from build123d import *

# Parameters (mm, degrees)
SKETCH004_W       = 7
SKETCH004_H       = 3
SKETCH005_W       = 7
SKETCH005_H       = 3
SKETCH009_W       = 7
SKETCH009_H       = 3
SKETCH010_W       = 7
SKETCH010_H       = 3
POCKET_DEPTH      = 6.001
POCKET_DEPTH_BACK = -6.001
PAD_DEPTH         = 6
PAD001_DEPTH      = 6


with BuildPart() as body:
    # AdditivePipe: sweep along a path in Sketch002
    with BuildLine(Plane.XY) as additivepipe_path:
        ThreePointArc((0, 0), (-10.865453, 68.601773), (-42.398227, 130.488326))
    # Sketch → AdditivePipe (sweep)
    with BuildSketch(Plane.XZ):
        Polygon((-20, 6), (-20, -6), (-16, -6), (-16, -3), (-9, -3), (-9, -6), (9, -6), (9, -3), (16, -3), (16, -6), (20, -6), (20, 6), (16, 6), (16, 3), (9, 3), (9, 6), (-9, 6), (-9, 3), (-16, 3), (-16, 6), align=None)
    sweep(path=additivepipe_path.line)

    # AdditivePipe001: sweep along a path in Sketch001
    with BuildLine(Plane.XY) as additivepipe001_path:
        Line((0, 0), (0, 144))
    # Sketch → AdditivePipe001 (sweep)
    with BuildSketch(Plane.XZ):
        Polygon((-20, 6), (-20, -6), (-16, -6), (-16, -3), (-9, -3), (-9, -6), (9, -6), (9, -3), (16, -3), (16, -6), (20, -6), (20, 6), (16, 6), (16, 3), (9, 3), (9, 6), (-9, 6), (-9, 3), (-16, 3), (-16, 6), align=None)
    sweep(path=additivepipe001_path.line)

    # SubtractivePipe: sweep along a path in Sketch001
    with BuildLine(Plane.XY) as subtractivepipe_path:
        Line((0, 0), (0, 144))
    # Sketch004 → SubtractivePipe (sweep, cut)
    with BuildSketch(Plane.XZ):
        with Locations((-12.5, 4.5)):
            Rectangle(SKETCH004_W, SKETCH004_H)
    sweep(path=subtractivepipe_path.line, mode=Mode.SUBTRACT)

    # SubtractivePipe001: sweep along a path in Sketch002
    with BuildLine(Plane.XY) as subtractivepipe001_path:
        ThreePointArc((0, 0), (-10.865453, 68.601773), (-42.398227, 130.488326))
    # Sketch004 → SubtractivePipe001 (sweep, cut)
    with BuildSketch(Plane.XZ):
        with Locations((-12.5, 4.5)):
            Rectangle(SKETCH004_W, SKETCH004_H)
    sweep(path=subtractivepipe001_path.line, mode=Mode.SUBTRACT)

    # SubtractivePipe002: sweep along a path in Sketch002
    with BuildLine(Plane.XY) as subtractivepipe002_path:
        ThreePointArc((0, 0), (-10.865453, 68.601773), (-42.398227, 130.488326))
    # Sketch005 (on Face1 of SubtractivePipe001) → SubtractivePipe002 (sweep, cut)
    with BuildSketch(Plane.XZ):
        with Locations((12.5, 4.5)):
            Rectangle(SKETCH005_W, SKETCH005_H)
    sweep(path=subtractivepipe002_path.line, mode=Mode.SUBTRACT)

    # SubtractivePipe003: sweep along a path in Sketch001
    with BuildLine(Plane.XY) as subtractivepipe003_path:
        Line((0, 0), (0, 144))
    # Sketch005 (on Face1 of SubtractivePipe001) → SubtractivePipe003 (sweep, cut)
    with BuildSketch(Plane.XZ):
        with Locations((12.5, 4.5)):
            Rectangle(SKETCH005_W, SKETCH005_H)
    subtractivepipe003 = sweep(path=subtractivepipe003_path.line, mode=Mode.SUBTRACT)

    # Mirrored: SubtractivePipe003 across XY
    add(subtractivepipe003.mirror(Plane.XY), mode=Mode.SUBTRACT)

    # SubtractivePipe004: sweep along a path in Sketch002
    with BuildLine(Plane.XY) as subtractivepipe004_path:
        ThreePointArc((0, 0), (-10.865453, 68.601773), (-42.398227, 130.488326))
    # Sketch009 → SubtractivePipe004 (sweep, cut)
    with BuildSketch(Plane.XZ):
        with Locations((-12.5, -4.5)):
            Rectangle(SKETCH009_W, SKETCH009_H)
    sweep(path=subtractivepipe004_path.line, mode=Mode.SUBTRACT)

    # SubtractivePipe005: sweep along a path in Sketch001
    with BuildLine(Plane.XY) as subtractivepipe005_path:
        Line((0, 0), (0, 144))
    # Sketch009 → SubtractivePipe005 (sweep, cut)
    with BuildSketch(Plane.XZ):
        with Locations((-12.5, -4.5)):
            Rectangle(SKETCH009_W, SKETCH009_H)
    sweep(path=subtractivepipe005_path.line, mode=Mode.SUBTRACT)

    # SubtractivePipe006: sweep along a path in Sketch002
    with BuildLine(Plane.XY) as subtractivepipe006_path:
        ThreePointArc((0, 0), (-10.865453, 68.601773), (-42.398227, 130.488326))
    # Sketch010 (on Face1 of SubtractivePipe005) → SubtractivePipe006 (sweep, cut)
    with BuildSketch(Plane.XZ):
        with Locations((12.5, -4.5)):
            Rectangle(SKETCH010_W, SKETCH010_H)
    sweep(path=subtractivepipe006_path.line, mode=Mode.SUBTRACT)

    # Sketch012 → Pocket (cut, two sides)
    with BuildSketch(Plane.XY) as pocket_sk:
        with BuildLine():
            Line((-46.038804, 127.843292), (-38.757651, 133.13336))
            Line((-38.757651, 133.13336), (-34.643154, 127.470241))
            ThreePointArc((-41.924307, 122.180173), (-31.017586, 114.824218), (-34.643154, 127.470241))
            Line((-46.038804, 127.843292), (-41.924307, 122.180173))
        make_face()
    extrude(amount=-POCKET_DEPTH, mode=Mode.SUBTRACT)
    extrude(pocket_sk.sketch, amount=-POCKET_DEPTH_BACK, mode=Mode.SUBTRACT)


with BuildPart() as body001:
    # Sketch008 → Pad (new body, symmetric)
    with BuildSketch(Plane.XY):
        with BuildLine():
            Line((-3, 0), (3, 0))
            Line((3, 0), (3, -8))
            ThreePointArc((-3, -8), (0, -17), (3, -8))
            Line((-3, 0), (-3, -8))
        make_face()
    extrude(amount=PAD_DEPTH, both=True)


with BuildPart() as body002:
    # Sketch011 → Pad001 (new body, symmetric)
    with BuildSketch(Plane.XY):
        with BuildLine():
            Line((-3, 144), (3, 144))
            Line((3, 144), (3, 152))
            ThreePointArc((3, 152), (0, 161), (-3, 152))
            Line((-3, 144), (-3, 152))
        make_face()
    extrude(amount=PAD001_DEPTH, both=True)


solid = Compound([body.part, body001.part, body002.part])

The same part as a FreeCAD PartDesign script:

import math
import FreeCAD as App
import Part
import Sketcher

V = App.Vector
Q = App.Units.Quantity

doc = App.newDocument("Part")
body = doc.addObject("PartDesign::Body", "Body")

sketch1 = body.newObject("Sketcher::SketchObject", "Sketch")
sketch1.AttachmentSupport = (doc.getObject("XZ_Plane"), [""])
sketch1.MapMode = "FlatFace"
sketch1.addGeometry(Part.LineSegment(V(-20, 6, 0), V(-20, -6, 0)), False)
sketch1.addGeometry(Part.LineSegment(V(-20, -6, 0), V(-16, -6, 0)), False)
sketch1.addGeometry(Part.LineSegment(V(-16, -6, 0), V(-16, -3, 0)), False)
sketch1.addGeometry(Part.LineSegment(V(-16, -3, 0), V(-9, -3, 0)), False)
sketch1.addGeometry(Part.LineSegment(V(-9, -3, 0), V(-9, -6, 0)), False)
sketch1.addGeometry(Part.LineSegment(V(-9, -6, 0), V(9, -6, 0)), False)
sketch1.addGeometry(Part.LineSegment(V(9, -6, 0), V(9, -3, 0)), False)
sketch1.addGeometry(Part.LineSegment(V(9, -3, 0), V(16, -3, 0)), False)
sketch1.addGeometry(Part.LineSegment(V(16, -3, 0), V(16, -6, 0)), False)
sketch1.addGeometry(Part.LineSegment(V(16, -6, 0), V(20, -6, 0)), False)
sketch1.addGeometry(Part.LineSegment(V(20, -6, 0), V(20, 6, 0)), False)
sketch1.addGeometry(Part.LineSegment(V(20, 6, 0), V(16, 6, 0)), False)
sketch1.addGeometry(Part.LineSegment(V(16, 6, 0), V(16, 3, 0)), False)
sketch1.addGeometry(Part.LineSegment(V(16, 3, 0), V(9, 3, 0)), False)
sketch1.addGeometry(Part.LineSegment(V(9, 3, 0), V(9, 6, 0)), False)
sketch1.addGeometry(Part.LineSegment(V(9, 6, 0), V(-9, 6, 0)), False)
sketch1.addGeometry(Part.LineSegment(V(-9, 6, 0), V(-9, 3, 0)), False)
sketch1.addGeometry(Part.LineSegment(V(-9, 3, 0), V(-16, 3, 0)), False)
sketch1.addGeometry(Part.LineSegment(V(-16, 3, 0), V(-16, 6, 0)), False)
sketch1.addGeometry(Part.LineSegment(V(-16, 6, 0), V(-20, 6, 0)), False)
sketch1.addConstraint(Sketcher.Constraint("Coincident", 0, 2, 1, 1))
sketch1.addConstraint(Sketcher.Constraint("Coincident", 1, 2, 2, 1))
sketch1.addConstraint(Sketcher.Constraint("Coincident", 2, 2, 3, 1))
sketch1.addConstraint(Sketcher.Constraint("Coincident", 3, 2, 4, 1))
sketch1.addConstraint(Sketcher.Constraint("Coincident", 4, 2, 5, 1))
sketch1.addConstraint(Sketcher.Constraint("Coincident", 5, 2, 6, 1))
sketch1.addConstraint(Sketcher.Constraint("Coincident", 6, 2, 7, 1))
sketch1.addConstraint(Sketcher.Constraint("Coincident", 7, 2, 8, 1))
sketch1.addConstraint(Sketcher.Constraint("Coincident", 8, 2, 9, 1))
sketch1.addConstraint(Sketcher.Constraint("Coincident", 9, 2, 10, 1))
sketch1.addConstraint(Sketcher.Constraint("Coincident", 10, 2, 11, 1))
sketch1.addConstraint(Sketcher.Constraint("Coincident", 11, 2, 12, 1))
sketch1.addConstraint(Sketcher.Constraint("Coincident", 12, 2, 13, 1))
sketch1.addConstraint(Sketcher.Constraint("Coincident", 13, 2, 14, 1))
sketch1.addConstraint(Sketcher.Constraint("Coincident", 14, 2, 15, 1))
sketch1.addConstraint(Sketcher.Constraint("Coincident", 15, 2, 16, 1))
sketch1.addConstraint(Sketcher.Constraint("Coincident", 16, 2, 17, 1))
sketch1.addConstraint(Sketcher.Constraint("Coincident", 17, 2, 18, 1))
sketch1.addConstraint(Sketcher.Constraint("Coincident", 18, 2, 19, 1))
sketch1.addConstraint(Sketcher.Constraint("Coincident", 19, 2, 0, 1))
sketch1.addConstraint(Sketcher.Constraint("Vertical", 0))
sketch1.addConstraint(Sketcher.Constraint("Horizontal", 1))
sketch1.addConstraint(Sketcher.Constraint("Vertical", 2))
sketch1.addConstraint(Sketcher.Constraint("Horizontal", 3))
sketch1.addConstraint(Sketcher.Constraint("Vertical", 4))
sketch1.addConstraint(Sketcher.Constraint("Horizontal", 5))
sketch1.addConstraint(Sketcher.Constraint("Vertical", 6))
sketch1.addConstraint(Sketcher.Constraint("Horizontal", 7))
sketch1.addConstraint(Sketcher.Constraint("Vertical", 8))
sketch1.addConstraint(Sketcher.Constraint("Horizontal", 9))
sketch1.addConstraint(Sketcher.Constraint("Vertical", 10))
sketch1.addConstraint(Sketcher.Constraint("Horizontal", 11))
sketch1.addConstraint(Sketcher.Constraint("Vertical", 12))
sketch1.addConstraint(Sketcher.Constraint("Horizontal", 13))
sketch1.addConstraint(Sketcher.Constraint("Vertical", 14))
sketch1.addConstraint(Sketcher.Constraint("Horizontal", 15))
sketch1.addConstraint(Sketcher.Constraint("Vertical", 16))
sketch1.addConstraint(Sketcher.Constraint("Horizontal", 17))
sketch1.addConstraint(Sketcher.Constraint("Vertical", 18))
sketch1.addConstraint(Sketcher.Constraint("Horizontal", 19))
sketch1.addConstraint(Sketcher.Constraint("Symmetric", 0, 2, 10, 2, -1, 1))
sketch1.addConstraint(Sketcher.Constraint("Symmetric", 2, 2, 12, 2, -1, 1))
sketch1.addConstraint(Sketcher.Constraint("Symmetric", 4, 2, 14, 2, -1, 1))
sketch1.addConstraint(Sketcher.Constraint("Symmetric", 6, 2, 16, 2, -1, 1))
sketch1.addConstraint(Sketcher.Constraint("Symmetric", 8, 2, 18, 2, -1, 1))
sketch1.addConstraint(Sketcher.Constraint("Symmetric", 3, 2, 6, 2, -2))
sketch1.addConstraint(Sketcher.Constraint("Symmetric", 1, 2, 8, 2, -2))
sketch1.addConstraint(Sketcher.Constraint("Horizontal", 1, 2, 4, 2))
sketch1.addConstraint(Sketcher.Constraint("DistanceX", 1, 1, 1, 2, 4.0))
sketch1.addConstraint(Sketcher.Constraint("DistanceX", 3, 1, 3, 2, 7.0))
sketch1.addConstraint(Sketcher.Constraint("DistanceX", 5, 1, 5, 2, 18.0))
sketch1.addConstraint(Sketcher.Constraint("DistanceY", 0, 2, 0, 1, 12.0))
sketch1.addConstraint(Sketcher.Constraint("DistanceY", 2, 1, 2, 2, 3.0))

sketch2 = body.newObject("Sketcher::SketchObject", "Sketch001")
sketch2.AttachmentSupport = (doc.getObject("XY_Plane"), [""])
sketch2.MapMode = "FlatFace"
sketch2.addGeometry(Part.ArcOfCircle(Part.Circle(V(-221.999993, 0.000002, 0), V(0, 0, 1), 221.999993), math.radians(-0.000001), math.radians(36)), False)
sketch2.addConstraint(Sketcher.Constraint("Coincident", 0, 1, -1, 1))
sketch2.addConstraint(Sketcher.Constraint("Radius", 0, 221.999993))
sketch2.addConstraint(Sketcher.Constraint("DistanceX", 0, 2, -1, 1, 42.398227))
sketch2.addConstraint(Sketcher.Constraint("DistanceY", -1, 1, 0, 2, 130.488326))
doc.recompute()

additivepipe = body.newObject("PartDesign::AdditivePipe", "AdditivePipe")
additivepipe.Profile = sketch1
additivepipe.Spine = (sketch2, ["Edge1"])

sketch3 = body.newObject("Sketcher::SketchObject", "Sketch002")
sketch3.AttachmentSupport = (doc.getObject("XZ_Plane"), [""])
sketch3.MapMode = "FlatFace"
sketch3.addGeometry(Part.LineSegment(V(-20, 6, 0), V(-20, -6, 0)), False)
sketch3.addGeometry(Part.LineSegment(V(-20, -6, 0), V(-16, -6, 0)), False)
sketch3.addGeometry(Part.LineSegment(V(-16, -6, 0), V(-16, -3, 0)), False)
sketch3.addGeometry(Part.LineSegment(V(-16, -3, 0), V(-9, -3, 0)), False)
sketch3.addGeometry(Part.LineSegment(V(-9, -3, 0), V(-9, -6, 0)), False)
sketch3.addGeometry(Part.LineSegment(V(-9, -6, 0), V(9, -6, 0)), False)
sketch3.addGeometry(Part.LineSegment(V(9, -6, 0), V(9, -3, 0)), False)
sketch3.addGeometry(Part.LineSegment(V(9, -3, 0), V(16, -3, 0)), False)
sketch3.addGeometry(Part.LineSegment(V(16, -3, 0), V(16, -6, 0)), False)
sketch3.addGeometry(Part.LineSegment(V(16, -6, 0), V(20, -6, 0)), False)
sketch3.addGeometry(Part.LineSegment(V(20, -6, 0), V(20, 6, 0)), False)
sketch3.addGeometry(Part.LineSegment(V(20, 6, 0), V(16, 6, 0)), False)
sketch3.addGeometry(Part.LineSegment(V(16, 6, 0), V(16, 3, 0)), False)
sketch3.addGeometry(Part.LineSegment(V(16, 3, 0), V(9, 3, 0)), False)
sketch3.addGeometry(Part.LineSegment(V(9, 3, 0), V(9, 6, 0)), False)
sketch3.addGeometry(Part.LineSegment(V(9, 6, 0), V(-9, 6, 0)), False)
sketch3.addGeometry(Part.LineSegment(V(-9, 6, 0), V(-9, 3, 0)), False)
sketch3.addGeometry(Part.LineSegment(V(-9, 3, 0), V(-16, 3, 0)), False)
sketch3.addGeometry(Part.LineSegment(V(-16, 3, 0), V(-16, 6, 0)), False)
sketch3.addGeometry(Part.LineSegment(V(-16, 6, 0), V(-20, 6, 0)), False)
sketch3.addConstraint(Sketcher.Constraint("Coincident", 0, 2, 1, 1))
sketch3.addConstraint(Sketcher.Constraint("Coincident", 1, 2, 2, 1))
sketch3.addConstraint(Sketcher.Constraint("Coincident", 2, 2, 3, 1))
sketch3.addConstraint(Sketcher.Constraint("Coincident", 3, 2, 4, 1))
sketch3.addConstraint(Sketcher.Constraint("Coincident", 4, 2, 5, 1))
sketch3.addConstraint(Sketcher.Constraint("Coincident", 5, 2, 6, 1))
sketch3.addConstraint(Sketcher.Constraint("Coincident", 6, 2, 7, 1))
sketch3.addConstraint(Sketcher.Constraint("Coincident", 7, 2, 8, 1))
sketch3.addConstraint(Sketcher.Constraint("Coincident", 8, 2, 9, 1))
sketch3.addConstraint(Sketcher.Constraint("Coincident", 9, 2, 10, 1))
sketch3.addConstraint(Sketcher.Constraint("Coincident", 10, 2, 11, 1))
sketch3.addConstraint(Sketcher.Constraint("Coincident", 11, 2, 12, 1))
sketch3.addConstraint(Sketcher.Constraint("Coincident", 12, 2, 13, 1))
sketch3.addConstraint(Sketcher.Constraint("Coincident", 13, 2, 14, 1))
sketch3.addConstraint(Sketcher.Constraint("Coincident", 14, 2, 15, 1))
sketch3.addConstraint(Sketcher.Constraint("Coincident", 15, 2, 16, 1))
sketch3.addConstraint(Sketcher.Constraint("Coincident", 16, 2, 17, 1))
sketch3.addConstraint(Sketcher.Constraint("Coincident", 17, 2, 18, 1))
sketch3.addConstraint(Sketcher.Constraint("Coincident", 18, 2, 19, 1))
sketch3.addConstraint(Sketcher.Constraint("Coincident", 19, 2, 0, 1))
sketch3.addConstraint(Sketcher.Constraint("Vertical", 0))
sketch3.addConstraint(Sketcher.Constraint("Horizontal", 1))
sketch3.addConstraint(Sketcher.Constraint("Vertical", 2))
sketch3.addConstraint(Sketcher.Constraint("Horizontal", 3))
sketch3.addConstraint(Sketcher.Constraint("Vertical", 4))
sketch3.addConstraint(Sketcher.Constraint("Horizontal", 5))
sketch3.addConstraint(Sketcher.Constraint("Vertical", 6))
sketch3.addConstraint(Sketcher.Constraint("Horizontal", 7))
sketch3.addConstraint(Sketcher.Constraint("Vertical", 8))
sketch3.addConstraint(Sketcher.Constraint("Horizontal", 9))
sketch3.addConstraint(Sketcher.Constraint("Vertical", 10))
sketch3.addConstraint(Sketcher.Constraint("Horizontal", 11))
sketch3.addConstraint(Sketcher.Constraint("Vertical", 12))
sketch3.addConstraint(Sketcher.Constraint("Horizontal", 13))
sketch3.addConstraint(Sketcher.Constraint("Vertical", 14))
sketch3.addConstraint(Sketcher.Constraint("Horizontal", 15))
sketch3.addConstraint(Sketcher.Constraint("Vertical", 16))
sketch3.addConstraint(Sketcher.Constraint("Horizontal", 17))
sketch3.addConstraint(Sketcher.Constraint("Vertical", 18))
sketch3.addConstraint(Sketcher.Constraint("Horizontal", 19))
sketch3.addConstraint(Sketcher.Constraint("Symmetric", 0, 2, 10, 2, -1, 1))
sketch3.addConstraint(Sketcher.Constraint("Symmetric", 2, 2, 12, 2, -1, 1))
sketch3.addConstraint(Sketcher.Constraint("Symmetric", 4, 2, 14, 2, -1, 1))
sketch3.addConstraint(Sketcher.Constraint("Symmetric", 6, 2, 16, 2, -1, 1))
sketch3.addConstraint(Sketcher.Constraint("Symmetric", 8, 2, 18, 2, -1, 1))
sketch3.addConstraint(Sketcher.Constraint("Symmetric", 3, 2, 6, 2, -2))
sketch3.addConstraint(Sketcher.Constraint("Symmetric", 1, 2, 8, 2, -2))
sketch3.addConstraint(Sketcher.Constraint("Horizontal", 1, 2, 4, 2))
sketch3.addConstraint(Sketcher.Constraint("DistanceX", 1, 1, 1, 2, 4.0))
sketch3.addConstraint(Sketcher.Constraint("DistanceX", 3, 1, 3, 2, 7.0))
sketch3.addConstraint(Sketcher.Constraint("DistanceX", 5, 1, 5, 2, 18.0))
sketch3.addConstraint(Sketcher.Constraint("DistanceY", 0, 2, 0, 1, 12.0))
sketch3.addConstraint(Sketcher.Constraint("DistanceY", 2, 1, 2, 2, 3.0))

sketch4 = body.newObject("Sketcher::SketchObject", "Sketch003")
sketch4.AttachmentSupport = (doc.getObject("XY_Plane"), [""])
sketch4.MapMode = "FlatFace"
sketch4.addGeometry(Part.LineSegment(V(0, 0, 0), V(0, 144, 0)), False)
sketch4.addConstraint(Sketcher.Constraint("Vertical", 0))
sketch4.addConstraint(Sketcher.Constraint("Coincident", 0, 1, -1, 1))
sketch4.addConstraint(Sketcher.Constraint("DistanceY", 0, 1, 0, 2, 144.0))
doc.recompute()

additivepipe2 = body.newObject("PartDesign::AdditivePipe", "AdditivePipe001")
additivepipe2.Profile = sketch3
additivepipe2.Spine = (sketch4, ["Edge1"])

sketch5 = body.newObject("Sketcher::SketchObject", "Sketch004")
sketch5.AttachmentSupport = (doc.getObject("XZ_Plane"), [""])
sketch5.MapMode = "FlatFace"
sketch5.addGeometry(Part.LineSegment(V(-16, 6, 0), V(-16, 3, 0)), False)
sketch5.addGeometry(Part.LineSegment(V(-16, 3, 0), V(-9, 3, 0)), False)
sketch5.addGeometry(Part.LineSegment(V(-9, 3, 0), V(-9, 6, 0)), False)
sketch5.addGeometry(Part.LineSegment(V(-9, 6, 0), V(-16, 6, 0)), False)
sketch5.addConstraint(Sketcher.Constraint("Coincident", 0, 2, 1, 1))
sketch5.addConstraint(Sketcher.Constraint("Coincident", 1, 2, 2, 1))
sketch5.addConstraint(Sketcher.Constraint("Coincident", 2, 2, 3, 1))
sketch5.addConstraint(Sketcher.Constraint("Coincident", 3, 2, 0, 1))
sketch5.addConstraint(Sketcher.Constraint("Vertical", 0))
sketch5.addConstraint(Sketcher.Constraint("Horizontal", 1))
sketch5.addConstraint(Sketcher.Constraint("Vertical", 2))
sketch5.addConstraint(Sketcher.Constraint("Horizontal", 3))
sketch5.addConstraint(Sketcher.Constraint("DistanceX", 1, 1, 1, 2, 7.0))
sketch5.addConstraint(Sketcher.Constraint("DistanceY", 0, 2, 0, 1, 3.0))
sketch5.addConstraint(Sketcher.Constraint("DistanceX", 0, 2, -1, 1, 16.0))
sketch5.addConstraint(Sketcher.Constraint("DistanceY", -1, 1, 0, 2, 3.0))

sketch6 = body.newObject("Sketcher::SketchObject", "Sketch005")
sketch6.AttachmentSupport = (doc.getObject("XY_Plane"), [""])
sketch6.MapMode = "FlatFace"
sketch6.addGeometry(Part.LineSegment(V(0, 0, 0), V(0, 144, 0)), False)
sketch6.addConstraint(Sketcher.Constraint("Vertical", 0))
sketch6.addConstraint(Sketcher.Constraint("Coincident", 0, 1, -1, 1))
sketch6.addConstraint(Sketcher.Constraint("DistanceY", 0, 1, 0, 2, 144.0))
doc.recompute()

subtractivepipe = body.newObject("PartDesign::SubtractivePipe", "SubtractivePipe")
subtractivepipe.Profile = sketch5
subtractivepipe.Spine = (sketch6, ["Edge1"])

sketch7 = body.newObject("Sketcher::SketchObject", "Sketch006")
sketch7.AttachmentSupport = (doc.getObject("XZ_Plane"), [""])
sketch7.MapMode = "FlatFace"
sketch7.addGeometry(Part.LineSegment(V(-16, 6, 0), V(-16, 3, 0)), False)
sketch7.addGeometry(Part.LineSegment(V(-16, 3, 0), V(-9, 3, 0)), False)
sketch7.addGeometry(Part.LineSegment(V(-9, 3, 0), V(-9, 6, 0)), False)
sketch7.addGeometry(Part.LineSegment(V(-9, 6, 0), V(-16, 6, 0)), False)
sketch7.addConstraint(Sketcher.Constraint("Coincident", 0, 2, 1, 1))
sketch7.addConstraint(Sketcher.Constraint("Coincident", 1, 2, 2, 1))
sketch7.addConstraint(Sketcher.Constraint("Coincident", 2, 2, 3, 1))
sketch7.addConstraint(Sketcher.Constraint("Coincident", 3, 2, 0, 1))
sketch7.addConstraint(Sketcher.Constraint("Vertical", 0))
sketch7.addConstraint(Sketcher.Constraint("Horizontal", 1))
sketch7.addConstraint(Sketcher.Constraint("Vertical", 2))
sketch7.addConstraint(Sketcher.Constraint("Horizontal", 3))
sketch7.addConstraint(Sketcher.Constraint("DistanceX", 1, 1, 1, 2, 7.0))
sketch7.addConstraint(Sketcher.Constraint("DistanceY", 0, 2, 0, 1, 3.0))
sketch7.addConstraint(Sketcher.Constraint("DistanceX", 0, 2, -1, 1, 16.0))
sketch7.addConstraint(Sketcher.Constraint("DistanceY", -1, 1, 0, 2, 3.0))

sketch8 = body.newObject("Sketcher::SketchObject", "Sketch007")
sketch8.AttachmentSupport = (doc.getObject("XY_Plane"), [""])
sketch8.MapMode = "FlatFace"
sketch8.addGeometry(Part.ArcOfCircle(Part.Circle(V(-221.999993, 0.000002, 0), V(0, 0, 1), 221.999993), math.radians(-0.000001), math.radians(36)), False)
sketch8.addConstraint(Sketcher.Constraint("Coincident", 0, 1, -1, 1))
sketch8.addConstraint(Sketcher.Constraint("Radius", 0, 221.999993))
sketch8.addConstraint(Sketcher.Constraint("DistanceX", 0, 2, -1, 1, 42.398227))
sketch8.addConstraint(Sketcher.Constraint("DistanceY", -1, 1, 0, 2, 130.488326))
doc.recompute()

subtractivepipe2 = body.newObject("PartDesign::SubtractivePipe", "SubtractivePipe001")
subtractivepipe2.Profile = sketch7
subtractivepipe2.Spine = (sketch8, ["Edge1"])

sketch9 = body.newObject("Sketcher::SketchObject", "Sketch008")
sketch9.AttachmentSupport = (doc.getObject("XZ_Plane"), [""])
sketch9.MapMode = "FlatFace"
sketch9.addGeometry(Part.LineSegment(V(9, 6, 0), V(9, 3, 0)), False)
sketch9.addGeometry(Part.LineSegment(V(9, 3, 0), V(16, 3, 0)), False)
sketch9.addGeometry(Part.LineSegment(V(16, 3, 0), V(16, 6, 0)), False)
sketch9.addGeometry(Part.LineSegment(V(16, 6, 0), V(9, 6, 0)), False)
sketch9.addConstraint(Sketcher.Constraint("Coincident", 0, 2, 1, 1))
sketch9.addConstraint(Sketcher.Constraint("Coincident", 1, 2, 2, 1))
sketch9.addConstraint(Sketcher.Constraint("Coincident", 2, 2, 3, 1))
sketch9.addConstraint(Sketcher.Constraint("Coincident", 3, 2, 0, 1))
sketch9.addConstraint(Sketcher.Constraint("Vertical", 0))
sketch9.addConstraint(Sketcher.Constraint("Horizontal", 1))
sketch9.addConstraint(Sketcher.Constraint("Vertical", 2))
sketch9.addConstraint(Sketcher.Constraint("Horizontal", 3))
sketch9.addConstraint(Sketcher.Constraint("DistanceX", 1, 1, 1, 2, 7.0))
sketch9.addConstraint(Sketcher.Constraint("DistanceY", 0, 2, 0, 1, 3.0))
sketch9.addConstraint(Sketcher.Constraint("DistanceX", -1, 1, 0, 2, 9.0))
sketch9.addConstraint(Sketcher.Constraint("DistanceY", -1, 1, 0, 2, 3.0))

sketch10 = body.newObject("Sketcher::SketchObject", "Sketch009")
sketch10.AttachmentSupport = (doc.getObject("XY_Plane"), [""])
sketch10.MapMode = "FlatFace"
sketch10.addGeometry(Part.ArcOfCircle(Part.Circle(V(-221.999993, 0.000002, 0), V(0, 0, 1), 221.999993), math.radians(-0.000001), math.radians(36)), False)
sketch10.addConstraint(Sketcher.Constraint("Coincident", 0, 1, -1, 1))
sketch10.addConstraint(Sketcher.Constraint("Radius", 0, 221.999993))
sketch10.addConstraint(Sketcher.Constraint("DistanceX", 0, 2, -1, 1, 42.398227))
sketch10.addConstraint(Sketcher.Constraint("DistanceY", -1, 1, 0, 2, 130.488326))
doc.recompute()

subtractivepipe3 = body.newObject("PartDesign::SubtractivePipe", "SubtractivePipe002")
subtractivepipe3.Profile = sketch9
subtractivepipe3.Spine = (sketch10, ["Edge1"])

sketch11 = body.newObject("Sketcher::SketchObject", "Sketch010")
sketch11.AttachmentSupport = (doc.getObject("XZ_Plane"), [""])
sketch11.MapMode = "FlatFace"
sketch11.addGeometry(Part.LineSegment(V(9, 6, 0), V(9, 3, 0)), False)
sketch11.addGeometry(Part.LineSegment(V(9, 3, 0), V(16, 3, 0)), False)
sketch11.addGeometry(Part.LineSegment(V(16, 3, 0), V(16, 6, 0)), False)
sketch11.addGeometry(Part.LineSegment(V(16, 6, 0), V(9, 6, 0)), False)
sketch11.addConstraint(Sketcher.Constraint("Coincident", 0, 2, 1, 1))
sketch11.addConstraint(Sketcher.Constraint("Coincident", 1, 2, 2, 1))
sketch11.addConstraint(Sketcher.Constraint("Coincident", 2, 2, 3, 1))
sketch11.addConstraint(Sketcher.Constraint("Coincident", 3, 2, 0, 1))
sketch11.addConstraint(Sketcher.Constraint("Vertical", 0))
sketch11.addConstraint(Sketcher.Constraint("Horizontal", 1))
sketch11.addConstraint(Sketcher.Constraint("Vertical", 2))
sketch11.addConstraint(Sketcher.Constraint("Horizontal", 3))
sketch11.addConstraint(Sketcher.Constraint("DistanceX", 1, 1, 1, 2, 7.0))
sketch11.addConstraint(Sketcher.Constraint("DistanceY", 0, 2, 0, 1, 3.0))
sketch11.addConstraint(Sketcher.Constraint("DistanceX", -1, 1, 0, 2, 9.0))
sketch11.addConstraint(Sketcher.Constraint("DistanceY", -1, 1, 0, 2, 3.0))

sketch12 = body.newObject("Sketcher::SketchObject", "Sketch011")
sketch12.AttachmentSupport = (doc.getObject("XY_Plane"), [""])
sketch12.MapMode = "FlatFace"
sketch12.addGeometry(Part.LineSegment(V(0, 0, 0), V(0, 144, 0)), False)
sketch12.addConstraint(Sketcher.Constraint("Vertical", 0))
sketch12.addConstraint(Sketcher.Constraint("Coincident", 0, 1, -1, 1))
sketch12.addConstraint(Sketcher.Constraint("DistanceY", 0, 1, 0, 2, 144.0))
doc.recompute()

subtractivepipe4 = body.newObject("PartDesign::SubtractivePipe", "SubtractivePipe003")
subtractivepipe4.Profile = sketch11
subtractivepipe4.Spine = (sketch12, ["Edge1"])
doc.recompute()

mirrored = body.newObject("PartDesign::Mirrored", "Mirrored")
mirrored.Originals = [subtractivepipe4]
mirrored.MirrorPlane = (doc.getObject("XY_Plane"), [""])
body.Tip = mirrored

sketch13 = body.newObject("Sketcher::SketchObject", "Sketch012")
sketch13.AttachmentSupport = (doc.getObject("XZ_Plane"), [""])
sketch13.MapMode = "FlatFace"
sketch13.addGeometry(Part.LineSegment(V(-16, -3, 0), V(-16, -6, 0)), False)
sketch13.addGeometry(Part.LineSegment(V(-16, -6, 0), V(-9, -6, 0)), False)
sketch13.addGeometry(Part.LineSegment(V(-9, -6, 0), V(-9, -3, 0)), False)
sketch13.addGeometry(Part.LineSegment(V(-9, -3, 0), V(-16, -3, 0)), False)
sketch13.addConstraint(Sketcher.Constraint("Coincident", 0, 2, 1, 1))
sketch13.addConstraint(Sketcher.Constraint("Coincident", 1, 2, 2, 1))
sketch13.addConstraint(Sketcher.Constraint("Coincident", 2, 2, 3, 1))
sketch13.addConstraint(Sketcher.Constraint("Coincident", 3, 2, 0, 1))
sketch13.addConstraint(Sketcher.Constraint("Vertical", 0))
sketch13.addConstraint(Sketcher.Constraint("Horizontal", 1))
sketch13.addConstraint(Sketcher.Constraint("Vertical", 2))
sketch13.addConstraint(Sketcher.Constraint("Horizontal", 3))
sketch13.addConstraint(Sketcher.Constraint("DistanceX", 1, 1, 1, 2, 7.0))
sketch13.addConstraint(Sketcher.Constraint("DistanceY", 0, 2, 0, 1, 3.0))
sketch13.addConstraint(Sketcher.Constraint("DistanceX", 0, 2, -1, 1, 16.0))
sketch13.addConstraint(Sketcher.Constraint("DistanceY", 0, 2, -1, 1, 6.0))

sketch14 = body.newObject("Sketcher::SketchObject", "Sketch013")
sketch14.AttachmentSupport = (doc.getObject("XY_Plane"), [""])
sketch14.MapMode = "FlatFace"
sketch14.addGeometry(Part.ArcOfCircle(Part.Circle(V(-221.999993, 0.000002, 0), V(0, 0, 1), 221.999993), math.radians(-0.000001), math.radians(36)), False)
sketch14.addConstraint(Sketcher.Constraint("Coincident", 0, 1, -1, 1))
sketch14.addConstraint(Sketcher.Constraint("Radius", 0, 221.999993))
sketch14.addConstraint(Sketcher.Constraint("DistanceX", 0, 2, -1, 1, 42.398227))
sketch14.addConstraint(Sketcher.Constraint("DistanceY", -1, 1, 0, 2, 130.488326))
doc.recompute()

subtractivepipe5 = body.newObject("PartDesign::SubtractivePipe", "SubtractivePipe004")
subtractivepipe5.Profile = sketch13
subtractivepipe5.Spine = (sketch14, ["Edge1"])

sketch15 = body.newObject("Sketcher::SketchObject", "Sketch014")
sketch15.AttachmentSupport = (doc.getObject("XZ_Plane"), [""])
sketch15.MapMode = "FlatFace"
sketch15.addGeometry(Part.LineSegment(V(-16, -3, 0), V(-16, -6, 0)), False)
sketch15.addGeometry(Part.LineSegment(V(-16, -6, 0), V(-9, -6, 0)), False)
sketch15.addGeometry(Part.LineSegment(V(-9, -6, 0), V(-9, -3, 0)), False)
sketch15.addGeometry(Part.LineSegment(V(-9, -3, 0), V(-16, -3, 0)), False)
sketch15.addConstraint(Sketcher.Constraint("Coincident", 0, 2, 1, 1))
sketch15.addConstraint(Sketcher.Constraint("Coincident", 1, 2, 2, 1))
sketch15.addConstraint(Sketcher.Constraint("Coincident", 2, 2, 3, 1))
sketch15.addConstraint(Sketcher.Constraint("Coincident", 3, 2, 0, 1))
sketch15.addConstraint(Sketcher.Constraint("Vertical", 0))
sketch15.addConstraint(Sketcher.Constraint("Horizontal", 1))
sketch15.addConstraint(Sketcher.Constraint("Vertical", 2))
sketch15.addConstraint(Sketcher.Constraint("Horizontal", 3))
sketch15.addConstraint(Sketcher.Constraint("DistanceX", 1, 1, 1, 2, 7.0))
sketch15.addConstraint(Sketcher.Constraint("DistanceY", 0, 2, 0, 1, 3.0))
sketch15.addConstraint(Sketcher.Constraint("DistanceX", 0, 2, -1, 1, 16.0))
sketch15.addConstraint(Sketcher.Constraint("DistanceY", 0, 2, -1, 1, 6.0))

sketch16 = body.newObject("Sketcher::SketchObject", "Sketch015")
sketch16.AttachmentSupport = (doc.getObject("XY_Plane"), [""])
sketch16.MapMode = "FlatFace"
sketch16.addGeometry(Part.LineSegment(V(0, 0, 0), V(0, 144, 0)), False)
sketch16.addConstraint(Sketcher.Constraint("Vertical", 0))
sketch16.addConstraint(Sketcher.Constraint("Coincident", 0, 1, -1, 1))
sketch16.addConstraint(Sketcher.Constraint("DistanceY", 0, 1, 0, 2, 144.0))
doc.recompute()

subtractivepipe6 = body.newObject("PartDesign::SubtractivePipe", "SubtractivePipe005")
subtractivepipe6.Profile = sketch15
subtractivepipe6.Spine = (sketch16, ["Edge1"])

sketch17 = body.newObject("Sketcher::SketchObject", "Sketch016")
sketch17.AttachmentSupport = (doc.getObject("XZ_Plane"), [""])
sketch17.MapMode = "FlatFace"
sketch17.addGeometry(Part.LineSegment(V(9, -3, 0), V(9, -6, 0)), False)
sketch17.addGeometry(Part.LineSegment(V(9, -6, 0), V(16, -6, 0)), False)
sketch17.addGeometry(Part.LineSegment(V(16, -6, 0), V(16, -3, 0)), False)
sketch17.addGeometry(Part.LineSegment(V(16, -3, 0), V(9, -3, 0)), False)
sketch17.addConstraint(Sketcher.Constraint("Coincident", 0, 2, 1, 1))
sketch17.addConstraint(Sketcher.Constraint("Coincident", 1, 2, 2, 1))
sketch17.addConstraint(Sketcher.Constraint("Coincident", 2, 2, 3, 1))
sketch17.addConstraint(Sketcher.Constraint("Coincident", 3, 2, 0, 1))
sketch17.addConstraint(Sketcher.Constraint("Vertical", 0))
sketch17.addConstraint(Sketcher.Constraint("Horizontal", 1))
sketch17.addConstraint(Sketcher.Constraint("Vertical", 2))
sketch17.addConstraint(Sketcher.Constraint("Horizontal", 3))
sketch17.addConstraint(Sketcher.Constraint("DistanceX", 1, 1, 1, 2, 7.0))
sketch17.addConstraint(Sketcher.Constraint("DistanceY", 0, 2, 0, 1, 3.0))
sketch17.addConstraint(Sketcher.Constraint("DistanceX", -1, 1, 0, 2, 9.0))
sketch17.addConstraint(Sketcher.Constraint("DistanceY", 0, 2, -1, 1, 6.0))

sketch18 = body.newObject("Sketcher::SketchObject", "Sketch017")
sketch18.AttachmentSupport = (doc.getObject("XY_Plane"), [""])
sketch18.MapMode = "FlatFace"
sketch18.addGeometry(Part.ArcOfCircle(Part.Circle(V(-221.999993, 0.000002, 0), V(0, 0, 1), 221.999993), math.radians(-0.000001), math.radians(36)), False)
sketch18.addConstraint(Sketcher.Constraint("Coincident", 0, 1, -1, 1))
sketch18.addConstraint(Sketcher.Constraint("Radius", 0, 221.999993))
sketch18.addConstraint(Sketcher.Constraint("DistanceX", 0, 2, -1, 1, 42.398227))
sketch18.addConstraint(Sketcher.Constraint("DistanceY", -1, 1, 0, 2, 130.488326))
doc.recompute()

subtractivepipe7 = body.newObject("PartDesign::SubtractivePipe", "SubtractivePipe006")
subtractivepipe7.Profile = sketch17
subtractivepipe7.Spine = (sketch18, ["Edge1"])

sketch19 = body.newObject("Sketcher::SketchObject", "Sketch018")
sketch19.AttachmentSupport = (doc.getObject("XY_Plane"), [""])
sketch19.MapMode = "FlatFace"
sketch19.addGeometry(Part.LineSegment(V(-38.757651, 133.13336, 0), V(-46.038804, 127.843292, 0)), False)
sketch19.addGeometry(Part.LineSegment(V(-46.038804, 127.843292, 0), V(-41.924307, 122.180173, 0)), False)
sketch19.addGeometry(Part.ArcOfCircle(Part.Circle(V(-35.132083, 120.487337, 0), V(0, 0, 1), 7), math.radians(166.005206), math.radians(445.994801)), False)
sketch19.addGeometry(Part.LineSegment(V(-34.643154, 127.470241, 0), V(-38.757651, 133.13336, 0)), False)
sketch19.addConstraint(Sketcher.Constraint("Coincident", 0, 2, 1, 1))
sketch19.addConstraint(Sketcher.Constraint("Coincident", 1, 2, 2, 1))
sketch19.addConstraint(Sketcher.Constraint("Coincident", 2, 2, 3, 1))
sketch19.addConstraint(Sketcher.Constraint("Coincident", 3, 2, 0, 1))
sketch19.addConstraint(Sketcher.Constraint("Perpendicular", 0, 1))
sketch19.addConstraint(Sketcher.Constraint("Parallel", 1, 3))
sketch19.addConstraint(Sketcher.Constraint("Equal", 1, 3))
sketch19.addConstraint(Sketcher.Constraint("Radius", 2, 7.0))
sketch19.addConstraint(Sketcher.Constraint("Angle", 0, Q("-143.999996 deg")))
sketch19.addConstraint(Sketcher.Constraint("Distance", 0, 9.0))
sketch19.addConstraint(Sketcher.Constraint("Distance", 1, 7.0))
sketch19.addConstraint(Sketcher.Constraint("DistanceY", -1, 1, 2, 2, 127.470241))
sketch19.addConstraint(Sketcher.Constraint("DistanceX", 3, 2, -1, 1, 38.757651))
pocket1 = body.newObject("PartDesign::Pocket", "Pocket")
pocket1.Profile = sketch19
pocket1.Type = "ThroughAll"
pocket1.Midplane = True
body2 = doc.addObject("PartDesign::Body", "Body001")

sketch20 = body2.newObject("Sketcher::SketchObject", "Sketch019")
sketch20.AttachmentSupport = (doc.getObject("XY_Plane001"), [""])
sketch20.MapMode = "FlatFace"
sketch20.addGeometry(Part.LineSegment(V(3, 0, 0), V(-3, 0, 0)), False)
sketch20.addGeometry(Part.LineSegment(V(-3, 0, 0), V(-3, -8, 0)), False)
sketch20.addGeometry(Part.ArcOfCircle(Part.Circle(V(0, -12, 0), V(0, 0, 1), 5), math.radians(126.869898), math.radians(413.130102)), False)
sketch20.addGeometry(Part.LineSegment(V(3, -8, 0), V(3, 0, 0)), False)
sketch20.addConstraint(Sketcher.Constraint("Coincident", 0, 2, 1, 1))
sketch20.addConstraint(Sketcher.Constraint("Coincident", 1, 2, 2, 1))
sketch20.addConstraint(Sketcher.Constraint("Coincident", 2, 2, 3, 1))
sketch20.addConstraint(Sketcher.Constraint("Coincident", 3, 2, 0, 1))
sketch20.addConstraint(Sketcher.Constraint("Horizontal", 0))
sketch20.addConstraint(Sketcher.Constraint("Vertical", 1))
sketch20.addConstraint(Sketcher.Constraint("Vertical", 3))
sketch20.addConstraint(Sketcher.Constraint("Symmetric", 0, 2, 3, 2, -1, 1))
sketch20.addConstraint(Sketcher.Constraint("PointOnObject", 2, 3, -2))
sketch20.addConstraint(Sketcher.Constraint("Radius", 2, 5.0))
sketch20.addConstraint(Sketcher.Constraint("DistanceX", 0, 2, 0, 1, 6.0))
sketch20.addConstraint(Sketcher.Constraint("DistanceY", 1, 2, 1, 1, 8.0))
pad1 = body2.newObject("PartDesign::Pad", "Pad")
pad1.Profile = sketch20
pad1.Length = 12
pad1.Midplane = True
body3 = doc.addObject("PartDesign::Body", "Body002")

sketch21 = body3.newObject("Sketcher::SketchObject", "Sketch020")
sketch21.AttachmentSupport = (doc.getObject("XY_Plane002"), [""])
sketch21.MapMode = "FlatFace"
sketch21.addGeometry(Part.LineSegment(V(-3, 144, 0), V(3, 144, 0)), False)
sketch21.addGeometry(Part.LineSegment(V(3, 144, 0), V(3, 152, 0)), False)
sketch21.addGeometry(Part.ArcOfCircle(Part.Circle(V(0, 156, 0), V(0, 0, 1), 5), math.radians(-53.130102), math.radians(233.130102)), False)
sketch21.addGeometry(Part.LineSegment(V(-3, 152, 0), V(-3, 144, 0)), False)
sketch21.addConstraint(Sketcher.Constraint("Coincident", 0, 2, 1, 1))
sketch21.addConstraint(Sketcher.Constraint("Coincident", 1, 2, 2, 1))
sketch21.addConstraint(Sketcher.Constraint("Coincident", 2, 2, 3, 1))
sketch21.addConstraint(Sketcher.Constraint("Coincident", 3, 2, 0, 1))
sketch21.addConstraint(Sketcher.Constraint("Horizontal", 0))
sketch21.addConstraint(Sketcher.Constraint("Vertical", 1))
sketch21.addConstraint(Sketcher.Constraint("Vertical", 3))
sketch21.addConstraint(Sketcher.Constraint("Symmetric", 1, 2, 2, 2, -2))
sketch21.addConstraint(Sketcher.Constraint("Radius", 2, 5.0))
sketch21.addConstraint(Sketcher.Constraint("DistanceX", 0, 1, 0, 2, 6.0))
sketch21.addConstraint(Sketcher.Constraint("DistanceY", 1, 1, 1, 2, 8.0))
sketch21.addConstraint(Sketcher.Constraint("DistanceY", -1, 1, 2, 3, 156.0))
pad2 = body3.newObject("PartDesign::Pad", "Pad001")
pad2.Profile = sketch21
pad2.Length = 12
pad2.Midplane = True

doc.recompute()
